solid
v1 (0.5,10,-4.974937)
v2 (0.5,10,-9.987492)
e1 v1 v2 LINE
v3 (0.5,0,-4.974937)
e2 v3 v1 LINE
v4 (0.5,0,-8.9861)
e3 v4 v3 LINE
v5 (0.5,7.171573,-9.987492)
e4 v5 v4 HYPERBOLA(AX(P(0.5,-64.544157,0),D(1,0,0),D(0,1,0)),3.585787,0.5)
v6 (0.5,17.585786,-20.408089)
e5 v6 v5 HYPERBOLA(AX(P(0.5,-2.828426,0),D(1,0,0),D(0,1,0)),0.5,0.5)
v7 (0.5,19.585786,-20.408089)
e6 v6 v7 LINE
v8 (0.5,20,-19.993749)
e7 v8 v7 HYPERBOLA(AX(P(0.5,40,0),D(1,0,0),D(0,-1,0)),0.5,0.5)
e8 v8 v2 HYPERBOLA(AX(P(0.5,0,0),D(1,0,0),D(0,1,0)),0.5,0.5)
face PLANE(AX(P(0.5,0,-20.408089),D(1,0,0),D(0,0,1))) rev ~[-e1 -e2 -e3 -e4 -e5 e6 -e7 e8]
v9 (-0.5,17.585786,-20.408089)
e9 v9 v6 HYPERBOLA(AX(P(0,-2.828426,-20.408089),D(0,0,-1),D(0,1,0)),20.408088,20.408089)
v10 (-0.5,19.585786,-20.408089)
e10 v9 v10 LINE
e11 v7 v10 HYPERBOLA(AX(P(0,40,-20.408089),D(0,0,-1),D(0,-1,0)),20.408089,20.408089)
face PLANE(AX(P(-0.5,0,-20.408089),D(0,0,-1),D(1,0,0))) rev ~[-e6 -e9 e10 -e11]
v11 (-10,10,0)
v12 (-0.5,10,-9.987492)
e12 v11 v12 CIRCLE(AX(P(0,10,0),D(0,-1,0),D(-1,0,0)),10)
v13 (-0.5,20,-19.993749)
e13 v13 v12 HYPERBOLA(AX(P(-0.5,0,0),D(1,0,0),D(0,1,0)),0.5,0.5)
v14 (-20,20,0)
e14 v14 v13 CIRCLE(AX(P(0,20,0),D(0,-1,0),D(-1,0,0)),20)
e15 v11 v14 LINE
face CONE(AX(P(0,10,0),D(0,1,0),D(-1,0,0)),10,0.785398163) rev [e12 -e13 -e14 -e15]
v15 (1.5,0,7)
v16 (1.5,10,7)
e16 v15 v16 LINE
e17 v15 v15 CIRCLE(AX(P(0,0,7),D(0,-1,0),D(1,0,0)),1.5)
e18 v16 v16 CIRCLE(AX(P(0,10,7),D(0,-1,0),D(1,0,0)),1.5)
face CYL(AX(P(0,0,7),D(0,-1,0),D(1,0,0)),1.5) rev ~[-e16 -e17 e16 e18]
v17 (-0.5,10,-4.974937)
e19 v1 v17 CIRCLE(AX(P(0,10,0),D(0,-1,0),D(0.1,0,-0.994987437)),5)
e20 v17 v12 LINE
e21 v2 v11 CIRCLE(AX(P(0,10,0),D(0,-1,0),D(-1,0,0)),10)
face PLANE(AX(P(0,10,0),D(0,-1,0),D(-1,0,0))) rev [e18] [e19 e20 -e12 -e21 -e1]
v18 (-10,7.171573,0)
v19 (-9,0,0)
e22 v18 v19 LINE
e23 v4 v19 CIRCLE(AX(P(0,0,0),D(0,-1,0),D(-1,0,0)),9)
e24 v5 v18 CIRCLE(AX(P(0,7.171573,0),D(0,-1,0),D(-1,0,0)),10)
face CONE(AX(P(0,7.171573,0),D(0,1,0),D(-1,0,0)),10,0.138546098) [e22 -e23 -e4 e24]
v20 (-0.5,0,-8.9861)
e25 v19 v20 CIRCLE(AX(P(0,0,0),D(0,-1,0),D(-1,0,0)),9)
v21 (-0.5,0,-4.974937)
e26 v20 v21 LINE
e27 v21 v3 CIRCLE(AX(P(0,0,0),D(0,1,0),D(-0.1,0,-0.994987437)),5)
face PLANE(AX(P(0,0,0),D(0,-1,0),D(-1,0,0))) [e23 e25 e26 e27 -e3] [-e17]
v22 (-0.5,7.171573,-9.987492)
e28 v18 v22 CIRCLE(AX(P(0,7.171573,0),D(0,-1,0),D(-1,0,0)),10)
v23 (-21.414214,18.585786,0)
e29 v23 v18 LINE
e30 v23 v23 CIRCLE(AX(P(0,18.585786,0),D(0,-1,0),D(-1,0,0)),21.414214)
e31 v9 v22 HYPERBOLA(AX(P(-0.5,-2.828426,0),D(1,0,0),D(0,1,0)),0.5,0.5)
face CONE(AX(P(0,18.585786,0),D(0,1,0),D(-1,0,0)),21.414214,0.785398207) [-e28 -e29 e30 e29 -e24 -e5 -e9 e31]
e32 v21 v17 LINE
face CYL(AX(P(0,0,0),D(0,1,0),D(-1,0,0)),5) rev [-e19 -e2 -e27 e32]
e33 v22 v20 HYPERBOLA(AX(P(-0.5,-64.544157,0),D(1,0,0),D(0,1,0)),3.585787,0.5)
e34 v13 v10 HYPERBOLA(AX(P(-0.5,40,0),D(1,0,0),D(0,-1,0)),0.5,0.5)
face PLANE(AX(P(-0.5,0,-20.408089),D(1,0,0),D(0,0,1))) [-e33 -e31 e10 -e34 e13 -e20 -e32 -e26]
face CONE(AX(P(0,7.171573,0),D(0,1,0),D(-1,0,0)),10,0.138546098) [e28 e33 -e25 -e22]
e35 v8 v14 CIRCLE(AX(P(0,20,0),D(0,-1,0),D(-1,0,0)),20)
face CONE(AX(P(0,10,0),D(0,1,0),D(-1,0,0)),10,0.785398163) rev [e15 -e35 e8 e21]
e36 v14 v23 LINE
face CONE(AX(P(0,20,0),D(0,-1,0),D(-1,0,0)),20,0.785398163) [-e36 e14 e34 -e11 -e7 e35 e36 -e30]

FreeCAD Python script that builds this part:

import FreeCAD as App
import Part
import Sketcher
from FreeCAD import Vector
Q = App.Units.Quantity

doc = App.newDocument("Part")
params = doc.addObject("Spreadsheet::Sheet", "Params")
for row, (alias, value) in enumerate([
    ("sketch1_width", "4 mm"),
    ("sketch1_width2", "5 mm"),
    ("sketch1_height", "10 mm"),
    ("sketch1_length", "2.000001 mm"),
    ("revolution_angle", "360 deg"),
    ("sketch2_diameter", "3 mm"),
    ("sketch3_width", "1 mm"),
    ("pocket2_length", "25 mm"),
], start=1):
    params.set(f"A{row}", alias)
    params.set(f"B{row}", "=" + value)
    params.setAlias(f"B{row}", alias)

body = doc.addObject("PartDesign::Body", "Body")

# Sketch on XY plane
sketch1 = body.newObject("Sketcher::SketchObject", "Sketch")
sketch1.AttachmentSupport = (doc.getObject("XY_Plane"), [""])
sketch1.MapMode = "FlatFace"
sketch1.addGeometry(Part.LineSegment(Vector(-10, 10, 0), Vector(-20, 20, 0)), False)
sketch1.addGeometry(Part.LineSegment(Vector(-20, 20, 0), Vector(-21.4, 18.6, 0)), False)
sketch1.addGeometry(Part.LineSegment(Vector(-21.4, 18.6, 0), Vector(-10, 7.2, 0)), False)
sketch1.addGeometry(Part.LineSegment(Vector(-10, 7.2, 0), Vector(-9, 0, 0)), False)
sketch1.addGeometry(Part.LineSegment(Vector(-9, 0, 0), Vector(-5, 0, 0)), False)
sketch1.addGeometry(Part.LineSegment(Vector(-5, 0, 0), Vector(-5, 10, 0)), False)
sketch1.addGeometry(Part.LineSegment(Vector(-5, 10, 0), Vector(-10, 10, 0)), False)
sketch1.addConstraint(Sketcher.Constraint("Coincident", 0, 2, 1, 1))
sketch1.addConstraint(Sketcher.Constraint("Coincident", 1, 2, 2, 1))
sketch1.addConstraint(Sketcher.Constraint("Coincident", 2, 2, 3, 1))
sketch1.addConstraint(Sketcher.Constraint("Coincident", 3, 2, 4, 1))
sketch1.addConstraint(Sketcher.Constraint("Coincident", 4, 2, 5, 1))
sketch1.addConstraint(Sketcher.Constraint("Coincident", 5, 2, 6, 1))
sketch1.addConstraint(Sketcher.Constraint("Coincident", 6, 2, 0, 1))
sketch1.addConstraint(Sketcher.Constraint("Horizontal", 4))
sketch1.addConstraint(Sketcher.Constraint("Vertical", 5))
sketch1.addConstraint(Sketcher.Constraint("Horizontal", 6))
sketch1.addConstraint(Sketcher.Constraint("PointOnObject", 3, 2, -1))
sketch1.addConstraint(Sketcher.Constraint("Perpendicular", 0, 1))
sketch1.addConstraint(Sketcher.Constraint("Perpendicular", 1, 2))
sketch1.addConstraint(Sketcher.Constraint("Vertical", 2, 2, 6, 2))
sketch1.addConstraint(Sketcher.Constraint("DistanceX", 4, 1, 4, 2, 4.0))
sketch1.addConstraint(Sketcher.Constraint("DistanceX", 6, 2, 6, 1, 5.0))
sketch1.addConstraint(Sketcher.Constraint("DistanceY", 5, 1, 5, 2, 10.0))
sketch1.addConstraint(Sketcher.Constraint("Angle", 0, Q("135 deg")))
sketch1.addConstraint(Sketcher.Constraint("Distance", 1, 2.000001))
sketch1.addConstraint(Sketcher.Constraint("DistanceX", 0, 2, -1, 1, 20.0))
sketch1.addConstraint(Sketcher.Constraint("DistanceY", -1, 1, 0, 2, 20.0))
sketch1.setExpression("Constraints[14]", "Params.sketch1_width")
sketch1.setExpression("Constraints[15]", "Params.sketch1_width2")
sketch1.setExpression("Constraints[16]", "Params.sketch1_height")
sketch1.setExpression("Constraints[18]", "Params.sketch1_length")
revolution = body.newObject("PartDesign::Revolution", "Revolution")
revolution.Profile = sketch1
revolution.ReferenceAxis = (sketch1, ["V_Axis"])
revolution.setExpression("Angle", "Params.revolution_angle")

# Sketch on XZ plane
sketch2 = body.newObject("Sketcher::SketchObject", "Sketch001")
sketch2.AttachmentSupport = (doc.getObject("XZ_Plane"), [""])
sketch2.MapMode = "FlatFace"
sketch2.addGeometry(Part.Circle(Vector(0, 7, 0), Vector(0, 0, 1), 1.5), False)
sketch2.addConstraint(Sketcher.Constraint("PointOnObject", 0, 3, -2))
sketch2.addConstraint(Sketcher.Constraint("Diameter", 0, 3.0))
sketch2.addConstraint(Sketcher.Constraint("DistanceY", -1, 1, 0, 3, 7.0))
sketch2.setExpression("Constraints[1]", "Params.sketch2_diameter")
pocket1 = body.newObject("PartDesign::Pocket", "Pocket")
pocket1.Profile = sketch2
pocket1.Type = "ThroughAll"

# Sketch on XZ plane
sketch3 = body.newObject("Sketcher::SketchObject", "Sketch002")
sketch3.AttachmentSupport = (doc.getObject("XZ_Plane"), [""])
sketch3.MapMode = "FlatFace"
sketch3.addGeometry(Part.LineSegment(Vector(-0.5, 0, 0), Vector(-0.5, -20.4, 0)), False)
sketch3.addGeometry(Part.LineSegment(Vector(-0.5, -20.4, 0), Vector(0.5, -20.4, 0)), False)
sketch3.addGeometry(Part.LineSegment(Vector(0.5, -20.4, 0), Vector(0.5, 0, 0)), False)
sketch3.addGeometry(Part.LineSegment(Vector(0.5, 0, 0), Vector(-0.5, 0, 0)), False)
sketch3.addConstraint(Sketcher.Constraint("Coincident", 0, 2, 1, 1))
sketch3.addConstraint(Sketcher.Constraint("Coincident", 1, 2, 2, 1))
sketch3.addConstraint(Sketcher.Constraint("Coincident", 2, 2, 3, 1))
sketch3.addConstraint(Sketcher.Constraint("Coincident", 3, 2, 0, 1))
sketch3.addConstraint(Sketcher.Constraint("Vertical", 0))
sketch3.addConstraint(Sketcher.Constraint("Horizontal", 1))
sketch3.addConstraint(Sketcher.Constraint("Vertical", 2))
sketch3.addConstraint(Sketcher.Constraint("Horizontal", 3))
sketch3.addConstraint(Sketcher.Constraint("Symmetric", 2, 2, 3, 2, -1, 1))
sketch3.addConstraint(Sketcher.Constraint("DistanceX", 1, 1, 1, 2, 1.0))
sketch3.addConstraint(Sketcher.Constraint("DistanceY", 0, 2, 0, 1, 20.408089))
sketch3.setExpression("Constraints[9]", "Params.sketch3_width")
pocket2 = body.newObject("PartDesign::Pocket", "Pocket001")
pocket2.Profile = sketch3
pocket2.setExpression("Length", "Params.pocket2_length")

doc.recompute()
